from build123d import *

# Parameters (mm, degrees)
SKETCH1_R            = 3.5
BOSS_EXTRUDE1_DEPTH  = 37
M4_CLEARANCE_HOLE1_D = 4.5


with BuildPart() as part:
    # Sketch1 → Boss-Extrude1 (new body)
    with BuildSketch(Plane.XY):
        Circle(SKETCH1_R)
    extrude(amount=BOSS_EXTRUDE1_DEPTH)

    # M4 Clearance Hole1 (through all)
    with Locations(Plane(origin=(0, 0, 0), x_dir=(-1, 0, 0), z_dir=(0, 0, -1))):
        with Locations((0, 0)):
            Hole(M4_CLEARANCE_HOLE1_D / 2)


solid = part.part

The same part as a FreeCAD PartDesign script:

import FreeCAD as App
import Part
import Sketcher
from FreeCAD import Vector

doc = App.newDocument("Part")
body = doc.addObject("PartDesign::Body", "Body")

sketch1 = doc.addObject("Sketcher::SketchObject", "Sketch")
body.addObject(sketch1)
sketch1.AttachmentSupport = (doc.XY_Plane, [""])
sketch1.MapMode = "FlatFace"
sketch1.addGeometry(Part.Circle(Vector(0, 0, 0), Vector(0, 0, 1), 3.5), False)
sketch1.addConstraint(Sketcher.Constraint("Coincident", 0, 3, -1, 1))
sketch1.addConstraint(Sketcher.Constraint("Diameter", 0, 7.0))
pad1 = doc.addObject("PartDesign::Pad", "Pad")
body.addObject(pad1)
pad1.Profile = sketch1
pad1.Length = 37

sketch2 = doc.addObject("Sketcher::SketchObject", "Sketch001")
body.addObject(sketch2)
sketch2.AttachmentSupport = (doc.XY_Plane, [""])
sketch2.MapMode = "FlatFace"
sketch2.addGeometry(Part.Circle(Vector(0, 0, 0), Vector(0, 0, 1), 2.2), False)
sketch2.addConstraint(Sketcher.Constraint("Coincident", 0, 3, -1, 1))
sketch2.addConstraint(Sketcher.Constraint("Diameter", 0, 4.5))
doc.recompute()
hole = doc.addObject("PartDesign::Hole", "Hole")
body.addObject(hole)
hole.Profile = sketch2
hole.ThreadType = "None"
hole.Diameter = 4.5
hole.DepthType = "ThroughAll"
hole.Reversed = True

doc.recompute()
